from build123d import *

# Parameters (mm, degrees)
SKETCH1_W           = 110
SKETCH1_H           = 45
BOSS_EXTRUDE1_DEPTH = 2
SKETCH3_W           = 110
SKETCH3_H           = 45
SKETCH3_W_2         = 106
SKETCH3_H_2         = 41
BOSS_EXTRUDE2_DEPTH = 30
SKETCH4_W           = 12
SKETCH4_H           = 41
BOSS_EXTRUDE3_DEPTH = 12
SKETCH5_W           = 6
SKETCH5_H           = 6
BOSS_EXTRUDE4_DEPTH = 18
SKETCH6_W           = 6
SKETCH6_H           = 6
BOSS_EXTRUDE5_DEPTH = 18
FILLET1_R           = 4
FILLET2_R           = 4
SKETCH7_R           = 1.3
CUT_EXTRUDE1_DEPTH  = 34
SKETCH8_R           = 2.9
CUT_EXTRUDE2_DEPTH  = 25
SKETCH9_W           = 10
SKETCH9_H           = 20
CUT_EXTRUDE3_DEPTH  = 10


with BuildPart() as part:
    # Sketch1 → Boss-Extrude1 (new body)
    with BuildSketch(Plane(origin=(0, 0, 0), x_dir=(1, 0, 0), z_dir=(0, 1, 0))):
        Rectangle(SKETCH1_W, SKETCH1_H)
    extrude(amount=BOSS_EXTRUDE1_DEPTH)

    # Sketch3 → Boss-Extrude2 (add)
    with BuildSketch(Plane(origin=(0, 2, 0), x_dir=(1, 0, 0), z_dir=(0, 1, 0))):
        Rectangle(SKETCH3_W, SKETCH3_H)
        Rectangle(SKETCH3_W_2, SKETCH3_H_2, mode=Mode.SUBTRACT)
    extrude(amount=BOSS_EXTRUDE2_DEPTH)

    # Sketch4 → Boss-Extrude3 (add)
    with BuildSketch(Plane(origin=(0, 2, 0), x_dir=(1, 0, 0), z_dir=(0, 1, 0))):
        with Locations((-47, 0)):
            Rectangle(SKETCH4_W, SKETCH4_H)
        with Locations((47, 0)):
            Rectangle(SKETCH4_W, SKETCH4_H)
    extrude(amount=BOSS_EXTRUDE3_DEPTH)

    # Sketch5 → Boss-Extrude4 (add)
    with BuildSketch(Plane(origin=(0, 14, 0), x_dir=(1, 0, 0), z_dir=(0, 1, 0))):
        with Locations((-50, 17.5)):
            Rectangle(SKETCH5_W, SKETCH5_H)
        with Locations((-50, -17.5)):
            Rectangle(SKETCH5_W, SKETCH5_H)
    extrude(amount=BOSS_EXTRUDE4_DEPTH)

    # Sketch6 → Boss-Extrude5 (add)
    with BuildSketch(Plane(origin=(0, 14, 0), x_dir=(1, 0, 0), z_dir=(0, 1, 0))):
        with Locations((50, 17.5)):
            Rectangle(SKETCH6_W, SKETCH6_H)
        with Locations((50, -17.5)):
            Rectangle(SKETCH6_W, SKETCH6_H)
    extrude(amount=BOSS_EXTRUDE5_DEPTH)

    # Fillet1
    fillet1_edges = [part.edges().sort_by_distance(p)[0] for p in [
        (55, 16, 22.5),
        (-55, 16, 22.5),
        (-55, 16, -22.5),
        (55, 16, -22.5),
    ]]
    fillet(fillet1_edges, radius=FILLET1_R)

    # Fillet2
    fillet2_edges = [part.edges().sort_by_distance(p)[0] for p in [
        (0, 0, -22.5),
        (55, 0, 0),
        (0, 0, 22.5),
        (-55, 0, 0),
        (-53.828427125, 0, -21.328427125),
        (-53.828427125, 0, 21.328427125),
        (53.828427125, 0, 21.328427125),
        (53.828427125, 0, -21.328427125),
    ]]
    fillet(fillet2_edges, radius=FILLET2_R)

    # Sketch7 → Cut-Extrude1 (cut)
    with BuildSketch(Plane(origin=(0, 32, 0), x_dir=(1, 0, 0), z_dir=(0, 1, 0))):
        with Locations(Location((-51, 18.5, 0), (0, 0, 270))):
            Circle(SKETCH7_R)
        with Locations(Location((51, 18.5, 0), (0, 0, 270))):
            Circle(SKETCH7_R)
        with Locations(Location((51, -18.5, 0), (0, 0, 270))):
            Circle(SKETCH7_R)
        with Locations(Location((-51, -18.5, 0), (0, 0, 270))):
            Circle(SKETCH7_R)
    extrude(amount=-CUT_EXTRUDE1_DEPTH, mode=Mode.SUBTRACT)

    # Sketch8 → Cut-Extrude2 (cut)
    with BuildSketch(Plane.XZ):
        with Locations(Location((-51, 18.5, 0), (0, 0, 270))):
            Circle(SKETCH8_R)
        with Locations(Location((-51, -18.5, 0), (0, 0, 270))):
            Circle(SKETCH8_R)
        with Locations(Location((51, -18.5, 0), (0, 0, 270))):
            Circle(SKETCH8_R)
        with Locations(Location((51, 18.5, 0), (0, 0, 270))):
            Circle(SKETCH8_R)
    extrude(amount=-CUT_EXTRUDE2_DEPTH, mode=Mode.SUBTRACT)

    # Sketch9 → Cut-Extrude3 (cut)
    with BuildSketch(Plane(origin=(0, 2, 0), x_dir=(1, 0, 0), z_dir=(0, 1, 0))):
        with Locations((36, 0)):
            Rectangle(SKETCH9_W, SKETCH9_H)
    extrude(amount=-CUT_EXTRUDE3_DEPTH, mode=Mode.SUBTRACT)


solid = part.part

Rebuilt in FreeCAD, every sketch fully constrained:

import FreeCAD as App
import Part
import Sketcher


def edges_at(feature, points):
    """Names of the edges that pass closest to the given points."""
    edges = feature.Shape.Edges
    near = lambda p: min(range(len(edges)), key=lambda i: edges[i].distToShape(Part.Vertex(*p))[0])
    return sorted({f"Edge{near(p) + 1}" for p in points})


def add_polygon(sketch, points):
    """Adds a closed chain of lines whose ends are joined by coincident constraints."""
    first, n = sketch.GeometryCount, len(points)
    for a, b in zip(points, points[1:] + points[:1]):
        sketch.addGeometry(Part.LineSegment(App.Vector(*a, 0), App.Vector(*b, 0)), False)
    for i in range(n):
        sketch.addConstraint(Sketcher.Constraint("Coincident", first + i, 2, first + (i + 1) % n, 1))

doc = App.newDocument("Part")
params = doc.addObject("Spreadsheet::Sheet", "Params")
for row, (alias, value) in enumerate([
    ("sketch1_width", "110 mm"),
    ("sketch1_height", "45 mm"),
    ("pad1_length", "2 mm"),
    ("sketch2_width", "110 mm"),
    ("sketch2_width2", "106 mm"),
    ("sketch2_height", "45 mm"),
    ("sketch2_height2", "41 mm"),
    ("pad2_length", "30 mm"),
    ("sketch3_width", "12 mm"),
    ("sketch3_height", "41 mm"),
    ("pad3_length", "12 mm"),
    ("sketch4_width", "6 mm"),
    ("pad4_length", "18 mm"),
    ("sketch5_width", "6 mm"),
    ("pad5_length", "18 mm"),
    ("fillet_radius", "4 mm"),
    ("fillet2_radius", "4 mm"),
    ("sketch6_diameter", "2.6 mm"),
    ("pocket1_length", "34 mm"),
    ("sketch7_diameter", "5.8 mm"),
    ("pocket2_length", "25 mm"),
    ("sketch8_width", "10 mm"),
    ("sketch8_height", "20 mm"),
    ("pocket3_length", "10 mm"),
], start=1):
    params.set(f"A{row}", alias)
    params.set(f"B{row}", "=" + value)
    params.setAlias(f"B{row}", alias)

body = doc.addObject("PartDesign::Body", "Body")

# Sketch on XZ plane
sketch1 = body.newObject("Sketcher::SketchObject", "Sketch")
sketch1.AttachmentSupport = (doc.getObject("XZ_Plane"), [""])
sketch1.MapMode = "FlatFace"
add_polygon(sketch1, [(-55, -22), (-55, 22), (55, 22), (55, -22)])  # lines 0-3
sketch1.addConstraint([
    Sketcher.Constraint("Vertical", 0),
    Sketcher.Constraint("Horizontal", 1),
    Sketcher.Constraint("Vertical", 2),
    Sketcher.Constraint("Horizontal", 3),
    Sketcher.Constraint("Symmetric", 0, 2, 2, 2, -1, 1),
    Sketcher.Constraint("DistanceX", 1, 1, 1, 2, 110.0),
    Sketcher.Constraint("DistanceY", 0, 1, 0, 2, 45.0),
])
sketch1.setExpression("Constraints[9]", "Params.sketch1_width")
sketch1.setExpression("Constraints[10]", "Params.sketch1_height")
pad1 = body.newObject("PartDesign::Pad", "Pad")
pad1.Profile = sketch1
pad1.setExpression("Length", "Params.pad1_length")
pad1.Reversed = True

# Sketch on XZ plane
sketch2 = body.newObject("Sketcher::SketchObject", "Sketch001")
sketch2.AttachmentSupport = (doc.getObject("XZ_Plane"), [""])
sketch2.MapMode = "FlatFace"
sketch2.AttachmentOffset = App.Placement(App.Vector(0, 0, -2), App.Rotation())
add_polygon(sketch2, [(-55, -22), (-55, 22), (55, 22), (55, -22)])  # lines 0-3
add_polygon(sketch2, [(53, 20), (-53, 20), (-53, -20), (53, -20)])  # lines 4-7
sketch2.addConstraint([
    Sketcher.Constraint("Vertical", 0),
    Sketcher.Constraint("Horizontal", 1),
    Sketcher.Constraint("Vertical", 2),
    Sketcher.Constraint("Horizontal", 3),
    Sketcher.Constraint("Horizontal", 4),
    Sketcher.Constraint("Vertical", 5),
    Sketcher.Constraint("Horizontal", 6),
    Sketcher.Constraint("Vertical", 7),
    Sketcher.Constraint("Symmetric", 0, 2, 2, 2, -1, 1),
    Sketcher.Constraint("Symmetric", 4, 2, 6, 2, -1, 1),
    Sketcher.Constraint("DistanceX", 1, 1, 1, 2, 110.0),
    Sketcher.Constraint("DistanceX", 4, 2, 4, 1, 106.0),
    Sketcher.Constraint("DistanceY", 0, 1, 0, 2, 45.0),
    Sketcher.Constraint("DistanceY", 5, 2, 5, 1, 41.0),
])
sketch2.setExpression("Constraints[18]", "Params.sketch2_width")
sketch2.setExpression("Constraints[19]", "Params.sketch2_width2")
sketch2.setExpression("Constraints[20]", "Params.sketch2_height")
sketch2.setExpression("Constraints[21]", "Params.sketch2_height2")
pad2 = body.newObject("PartDesign::Pad", "Pad001")
pad2.Profile = sketch2
pad2.setExpression("Length", "Params.pad2_length")
pad2.Reversed = True

# Sketch on XZ plane
sketch3 = body.newObject("Sketcher::SketchObject", "Sketch002")
sketch3.AttachmentSupport = (doc.getObject("XZ_Plane"), [""])
sketch3.MapMode = "FlatFace"
sketch3.AttachmentOffset = App.Placement(App.Vector(0, 0, -2), App.Rotation())
add_polygon(sketch3, [(-53, -20), (-53, 20), (-41, 20), (-41, -20)])  # lines 0-3
add_polygon(sketch3, [(41, -20), (41, 20), (53, 20), (53, -20)])  # lines 4-7
sketch3.addConstraint([
    Sketcher.Constraint("Vertical", 0),
    Sketcher.Constraint("Horizontal", 1),
    Sketcher.Constraint("Vertical", 2),
    Sketcher.Constraint("Horizontal", 3),
    Sketcher.Constraint("Vertical", 4),
    Sketcher.Constraint("Horizontal", 5),
    Sketcher.Constraint("Vertical", 6),
    Sketcher.Constraint("Horizontal", 7),
    Sketcher.Constraint("Symmetric", 2, 2, 4, 2, -1, 1),
    Sketcher.Constraint("Symmetric", 0, 2, 6, 2, -1, 1),
    Sketcher.Constraint("Horizontal", 1, 2, 4, 2),
    Sketcher.Constraint("DistanceX", 1, 1, 1, 2, 12.0),
    Sketcher.Constraint("DistanceY", 0, 1, 0, 2, 41.0),
    Sketcher.Constraint("DistanceX", 0, 2, -1, 1, 53.0),
])
sketch3.setExpression("Constraints[19]", "Params.sketch3_width")
sketch3.setExpression("Constraints[20]", "Params.sketch3_height")
pad3 = body.newObject("PartDesign::Pad", "Pad002")
pad3.Profile = sketch3
pad3.setExpression("Length", "Params.pad3_length")
pad3.Reversed = True

# Sketch on XZ plane
sketch4 = body.newObject("Sketcher::SketchObject", "Sketch003")
sketch4.AttachmentSupport = (doc.getObject("XZ_Plane"), [""])
sketch4.MapMode = "FlatFace"
sketch4.AttachmentOffset = App.Placement(App.Vector(0, 0, -14), App.Rotation())
add_polygon(sketch4, [(-53, -20), (-53, -14), (-47, -14), (-47, -20)])  # lines 0-3
add_polygon(sketch4, [(-53, 14), (-53, 20), (-47, 20), (-47, 14)])  # lines 4-7
sketch4.addConstraint([
    Sketcher.Constraint("Vertical", 0),
    Sketcher.Constraint("Horizontal", 1),
    Sketcher.Constraint("Vertical", 2),
    Sketcher.Constraint("Horizontal", 3),
    Sketcher.Constraint("Vertical", 4),
    Sketcher.Constraint("Horizontal", 5),
    Sketcher.Constraint("Vertical", 6),
    Sketcher.Constraint("Horizontal", 7),
    Sketcher.Constraint("Symmetric", 3, 2, 4, 2, -1),
    Sketcher.Constraint("Symmetric", 1, 2, 6, 2, -1),
    Sketcher.Constraint("Equal", 7, 0),
    Sketcher.Constraint("DistanceX", 1, 1, 1, 2, 6.0),
    Sketcher.Constraint("DistanceX", 0, 2, -1, 1, 53.0),
    Sketcher.Constraint("DistanceY", 0, 2, 4, 2, 35.0),
])
sketch4.setExpression("Constraints[19]", "Params.sketch4_width")
pad4 = body.newObject("PartDesign::Pad", "Pad003")
pad4.Profile = sketch4
pad4.setExpression("Length", "Params.pad4_length")
pad4.Reversed = True

# Sketch on XZ plane
sketch5 = body.newObject("Sketcher::SketchObject", "Sketch004")
sketch5.AttachmentSupport = (doc.getObject("XZ_Plane"), [""])
sketch5.MapMode = "FlatFace"
sketch5.AttachmentOffset = App.Placement(App.Vector(0, 0, -14), App.Rotation())
add_polygon(sketch5, [(47, -20), (47, -14), (53, -14), (53, -20)])  # lines 0-3
add_polygon(sketch5, [(47, 14), (47, 20), (53, 20), (53, 14)])  # lines 4-7
sketch5.addConstraint([
    Sketcher.Constraint("Vertical", 0),
    Sketcher.Constraint("Horizontal", 1),
    Sketcher.Constraint("Vertical", 2),
    Sketcher.Constraint("Horizontal", 3),
    Sketcher.Constraint("Vertical", 4),
    Sketcher.Constraint("Horizontal", 5),
    Sketcher.Constraint("Vertical", 6),
    Sketcher.Constraint("Horizontal", 7),
    Sketcher.Constraint("Symmetric", 3, 2, 4, 2, -1),
    Sketcher.Constraint("Symmetric", 1, 2, 6, 2, -1),
    Sketcher.Constraint("Equal", 7, 0),
    Sketcher.Constraint("DistanceX", 1, 1, 1, 2, 6.0),
    Sketcher.Constraint("DistanceX", -1, 1, 0, 2, 47.0),
    Sketcher.Constraint("DistanceY", 0, 2, 4, 2, 35.0),
])
sketch5.setExpression("Constraints[19]", "Params.sketch5_width")
pad5 = body.newObject("PartDesign::Pad", "Pad004")
pad5.Profile = sketch5
pad5.setExpression("Length", "Params.pad5_length")
pad5.Reversed = True
doc.recompute()

fillet = body.newObject("PartDesign::Fillet", "Fillet")
fillet.Base = (pad5, edges_at(pad5, [
    (55, 16, 22.5),
    (-55, 16, 22.5),
    (-55, 16, -22.5),
    (55, 16, -22.5),
]))
fillet.setExpression("Radius", "Params.fillet_radius")
doc.recompute()

fillet2 = body.newObject("PartDesign::Fillet", "Fillet001")
fillet2.Base = (fillet, edges_at(fillet, [
    (0, 0, -22.5),
    (55, 0, 0),
    (0, 0, 22.5),
    (-55, 0, 0),
    (-53.828, 0, -21.328),
    (-53.828, 0, 21.328),
    (53.828, 0, 21.328),
    (53.828, 0, -21.328),
]))
fillet2.setExpression("Radius", "Params.fillet2_radius")

# Sketch on XZ plane
sketch6 = body.newObject("Sketcher::SketchObject", "Sketch005")
sketch6.AttachmentSupport = (doc.getObject("XZ_Plane"), [""])
sketch6.MapMode = "FlatFace"
sketch6.AttachmentOffset = App.Placement(App.Vector(0, 0, -32), App.Rotation())
sketch6.addGeometry([
    Part.Circle(App.Vector(-51, -18.5, 0), App.Vector(0, 0, 1), 1.3),
    Part.Circle(App.Vector(51, -18.5, 0), App.Vector(0, 0, 1), 1.3),
    Part.Circle(App.Vector(51, 18.5, 0), App.Vector(0, 0, 1), 1.3),
    Part.Circle(App.Vector(-51, 18.5, 0), App.Vector(0, 0, 1), 1.3),
], False)
sketch6.addConstraint([
    Sketcher.Constraint("Equal", 0, 1),
    Sketcher.Constraint("Equal", 1, 2),
    Sketcher.Constraint("Equal", 2, 3),
    Sketcher.Constraint("Symmetric", 0, 3, 2, 3, -1, 1),
    Sketcher.Constraint("Symmetric", 1, 3, 3, 3, -1, 1),
    Sketcher.Constraint("Symmetric", 0, 3, 1, 3, -2),
    Sketcher.Constraint("Diameter", 0, 2.6),
    Sketcher.Constraint("DistanceX", 0, 3, -1, 1, 51.0),
    Sketcher.Constraint("DistanceY", 1, 3, 2, 3, 37.0),
])
sketch6.setExpression("Constraints[6]", "Params.sketch6_diameter")
pocket1 = body.newObject("PartDesign::Pocket", "Pocket")
pocket1.Profile = sketch6
pocket1.setExpression("Length", "Params.pocket1_length")
pocket1.Reversed = True

# Sketch on XZ plane
sketch7 = body.newObject("Sketcher::SketchObject", "Sketch006")
sketch7.AttachmentSupport = (doc.getObject("XZ_Plane"), [""])
sketch7.MapMode = "FlatFace"
sketch7.addGeometry([
    Part.Circle(App.Vector(-51, 18.5, 0), App.Vector(0, 0, 1), 2.9),
    Part.Circle(App.Vector(-51, -18.5, 0), App.Vector(0, 0, 1), 2.9),
    Part.Circle(App.Vector(51, -18.5, 0), App.Vector(0, 0, 1), 2.9),
    Part.Circle(App.Vector(51, 18.5, 0), App.Vector(0, 0, 1), 2.9),
], False)
sketch7.addConstraint([
    Sketcher.Constraint("Equal", 0, 1),
    Sketcher.Constraint("Equal", 1, 2),
    Sketcher.Constraint("Equal", 2, 3),
    Sketcher.Constraint("Symmetric", 0, 3, 2, 3, -1, 1),
    Sketcher.Constraint("Symmetric", 1, 3, 3, 3, -1, 1),
    Sketcher.Constraint("Symmetric", 1, 3, 2, 3, -2),
    Sketcher.Constraint("Diameter", 0, 5.8),
    Sketcher.Constraint("DistanceX", 0, 3, -1, 1, 51.0),
    Sketcher.Constraint("DistanceY", 1, 3, 0, 3, 37.0),
])
sketch7.setExpression("Constraints[6]", "Params.sketch7_diameter")
pocket2 = body.newObject("PartDesign::Pocket", "Pocket001")
pocket2.Profile = sketch7
pocket2.setExpression("Length", "Params.pocket2_length")

# Sketch on XZ plane
sketch8 = body.newObject("Sketcher::SketchObject", "Sketch007")
sketch8.AttachmentSupport = (doc.getObject("XZ_Plane"), [""])
sketch8.MapMode = "FlatFace"
sketch8.AttachmentOffset = App.Placement(App.Vector(0, 0, -2), App.Rotation())
add_polygon(sketch8, [(31, -10), (31, 10), (41, 10), (41, -10)])  # lines 0-3
sketch8.addConstraint([
    Sketcher.Constraint("Vertical", 0),
    Sketcher.Constraint("Horizontal", 1),
    Sketcher.Constraint("Vertical", 2),
    Sketcher.Constraint("Horizontal", 3),
    Sketcher.Constraint("DistanceX", 1, 1, 1, 2, 10.0),
    Sketcher.Constraint("DistanceY", 0, 1, 0, 2, 20.0),
    Sketcher.Constraint("DistanceX", -1, 1, 0, 2, 31.0),
    Sketcher.Constraint("DistanceY", -1, 1, 0, 2, 10.0),
])
sketch8.setExpression("Constraints[8]", "Params.sketch8_width")
sketch8.setExpression("Constraints[9]", "Params.sketch8_height")
pocket3 = body.newObject("PartDesign::Pocket", "Pocket002")
pocket3.Profile = sketch8
pocket3.setExpression("Length", "Params.pocket3_length")
pocket3.Reversed = True

doc.recompute()
